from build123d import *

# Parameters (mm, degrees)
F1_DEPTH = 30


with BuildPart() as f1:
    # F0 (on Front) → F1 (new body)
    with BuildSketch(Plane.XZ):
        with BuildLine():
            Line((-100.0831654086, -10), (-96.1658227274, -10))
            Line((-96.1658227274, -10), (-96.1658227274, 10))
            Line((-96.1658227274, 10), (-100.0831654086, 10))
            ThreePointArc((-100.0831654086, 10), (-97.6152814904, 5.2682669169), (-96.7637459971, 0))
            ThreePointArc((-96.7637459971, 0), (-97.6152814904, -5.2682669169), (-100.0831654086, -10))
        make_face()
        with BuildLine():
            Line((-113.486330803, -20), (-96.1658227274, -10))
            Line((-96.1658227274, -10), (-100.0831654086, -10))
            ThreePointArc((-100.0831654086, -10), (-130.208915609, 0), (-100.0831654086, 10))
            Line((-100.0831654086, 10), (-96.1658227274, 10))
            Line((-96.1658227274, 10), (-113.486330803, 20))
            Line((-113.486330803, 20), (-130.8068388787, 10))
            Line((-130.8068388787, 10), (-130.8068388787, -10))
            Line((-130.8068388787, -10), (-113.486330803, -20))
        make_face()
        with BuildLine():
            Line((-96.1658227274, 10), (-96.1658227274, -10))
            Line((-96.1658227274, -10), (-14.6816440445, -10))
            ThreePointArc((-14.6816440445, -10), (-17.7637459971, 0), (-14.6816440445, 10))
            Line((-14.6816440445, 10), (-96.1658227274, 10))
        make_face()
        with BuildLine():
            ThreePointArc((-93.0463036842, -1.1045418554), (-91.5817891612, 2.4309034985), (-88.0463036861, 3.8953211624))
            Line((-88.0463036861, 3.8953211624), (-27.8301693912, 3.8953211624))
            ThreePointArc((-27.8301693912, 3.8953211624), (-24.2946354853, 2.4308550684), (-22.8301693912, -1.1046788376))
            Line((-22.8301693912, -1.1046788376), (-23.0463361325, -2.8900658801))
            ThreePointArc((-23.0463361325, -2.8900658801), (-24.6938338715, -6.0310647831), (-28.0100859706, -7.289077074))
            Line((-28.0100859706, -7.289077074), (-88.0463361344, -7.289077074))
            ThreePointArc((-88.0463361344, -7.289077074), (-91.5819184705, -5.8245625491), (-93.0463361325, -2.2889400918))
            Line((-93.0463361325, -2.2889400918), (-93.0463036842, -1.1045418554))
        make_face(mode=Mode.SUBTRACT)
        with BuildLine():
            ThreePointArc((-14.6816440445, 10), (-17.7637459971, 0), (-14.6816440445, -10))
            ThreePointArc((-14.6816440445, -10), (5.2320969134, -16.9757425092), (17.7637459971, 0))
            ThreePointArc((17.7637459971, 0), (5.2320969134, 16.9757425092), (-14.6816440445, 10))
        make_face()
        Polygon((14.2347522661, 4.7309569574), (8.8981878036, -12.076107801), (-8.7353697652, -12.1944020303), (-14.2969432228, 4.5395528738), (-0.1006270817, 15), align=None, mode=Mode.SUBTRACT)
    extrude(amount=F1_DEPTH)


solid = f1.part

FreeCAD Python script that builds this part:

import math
import FreeCAD as App
import Part
import Sketcher
from FreeCAD import Vector
Q = App.Units.Quantity


def add_polygon(sketch, points):
    """Adds a closed chain of lines whose ends are joined by coincident constraints."""
    first, n = sketch.GeometryCount, len(points)
    for a, b in zip(points, points[1:] + points[:1]):
        sketch.addGeometry(Part.LineSegment(App.Vector(*a, 0), App.Vector(*b, 0)), False)
    for i in range(n):
        sketch.addConstraint(Sketcher.Constraint("Coincident", first + i, 2, first + (i + 1) % n, 1))

doc = App.newDocument("Part")
body = doc.addObject("PartDesign::Body", "Body")

# Sketch on XZ plane
sketch1 = doc.addObject("Sketcher::SketchObject", "Sketch")
body.addObject(sketch1)
sketch1.AttachmentSupport = (doc.XZ_Plane, [""])
sketch1.MapMode = "FlatFace"
sketch1.addGeometry(Part.LineSegment(Vector(-96.2, 10, 0), Vector(-113.5, 20, 0)), False)  # 0
sketch1.addGeometry(Part.LineSegment(Vector(-113.5, 20, 0), Vector(-130.8, 10, 0)), False)  # 1
sketch1.addGeometry(Part.LineSegment(Vector(-130.8, 10, 0), Vector(-130.8, -10, 0)), False)  # 2
sketch1.addGeometry(Part.LineSegment(Vector(-130.8, -10, 0), Vector(-113.5, -20, 0)), False)  # 3
sketch1.addGeometry(Part.LineSegment(Vector(-113.5, -20, 0), Vector(-96.2, -10, 0)), False)  # 4
sketch1.addGeometry(Part.LineSegment(Vector(-96.2, -10, 0), Vector(-14.7, -10, 0)), False)  # 5
sketch1.addGeometry(Part.ArcOfCircle(Part.Circle(Vector(0, 0, 0), Vector(0, 0, 1), 17.8), math.radians(-146), math.radians(0)), False)  # 6
sketch1.addGeometry(Part.ArcOfCircle(Part.Circle(Vector(0, 0, 0), Vector(0, 0, 1), 17.8), math.radians(0), math.radians(146)), False)  # 7
sketch1.addGeometry(Part.LineSegment(Vector(-14.7, 10, 0), Vector(-96.2, 10, 0)), False)  # 8
sketch1.addGeometry(Part.LineSegment(Vector(-93, -2.3, 0), Vector(-93, -1.1, 0)), False)  # 9
sketch1.addGeometry(Part.ArcOfCircle(Part.Circle(Vector(-88, -1.1, 0), Vector(0, 0, 1), 5), math.radians(90), math.radians(180)), False)  # 10
sketch1.addGeometry(Part.LineSegment(Vector(-88, 3.9, 0), Vector(-27.8, 3.9, 0)), False)  # 11
sketch1.addGeometry(Part.ArcOfCircle(Part.Circle(Vector(-27.8, -1.1, 0), Vector(0, 0, 1), 5), math.radians(0), math.radians(90)), False)  # 12
sketch1.addGeometry(Part.LineSegment(Vector(-22.8, -1.1, 0), Vector(-23, -2.9, 0)), False)  # 13
sketch1.addGeometry(Part.ArcOfCircle(Part.Circle(Vector(-28, -2.3, 0), Vector(0, 0, 1), 5), math.radians(-90), math.radians(-7)), False)  # 14
sketch1.addGeometry(Part.LineSegment(Vector(-28, -7.3, 0), Vector(-88, -7.3, 0)), False)  # 15
sketch1.addGeometry(Part.ArcOfCircle(Part.Circle(Vector(-88, -2.3, 0), Vector(0, 0, 1), 5), math.radians(180), math.radians(270)), False)  # 16
sketch1.addGeometry(Part.ArcOfCircle(Part.Circle(Vector(-113.5, 0, 0), Vector(0, 0, 1), 16.7), math.radians(0), math.radians(37)), False)  # 17
sketch1.addGeometry(Part.ArcOfCircle(Part.Circle(Vector(-113.5, 0, 0), Vector(0, 0, 1), 16.7), math.radians(-37), math.radians(0)), False)  # 18
sketch1.addGeometry(Part.ArcOfCircle(Part.Circle(Vector(-113.5, 0, 0), Vector(0, 0, 1), 16.7), math.radians(37), math.radians(323)), False)  # 19
add_polygon(sketch1, [(-0.1, 15), (14.2, 4.7), (8.9, -12.1), (-8.7, -12.2), (-14.3, 4.5)])  # lines 20-24
sketch1.addConstraint([
    Sketcher.Constraint("Coincident", 0, 2, 1, 1),
    Sketcher.Constraint("Coincident", 1, 2, 2, 1),
    Sketcher.Constraint("Coincident", 2, 2, 3, 1),
    Sketcher.Constraint("Coincident", 3, 2, 4, 1),
    Sketcher.Constraint("Coincident", 4, 2, 5, 1),
    Sketcher.Constraint("Coincident", 5, 2, 6, 1),
    Sketcher.Constraint("Tangent", 6, 2, 7, 1),
    Sketcher.Constraint("Coincident", 7, 2, 8, 1),
    Sketcher.Constraint("Coincident", 8, 2, 0, 1),
    Sketcher.Constraint("Tangent", 9, 2, 10, 2),
    Sketcher.Constraint("Tangent", 10, 1, 11, 1),
    Sketcher.Constraint("Tangent", 11, 2, 12, 2),
    Sketcher.Constraint("Coincident", 12, 1, 13, 1),
    Sketcher.Constraint("Tangent", 13, 2, 14, 2),
    Sketcher.Constraint("Tangent", 14, 1, 15, 1),
    Sketcher.Constraint("Tangent", 15, 2, 16, 2),
    Sketcher.Constraint("Tangent", 16, 1, 9, 1),
    Sketcher.Constraint("Tangent", 17, 1, 18, 2),
    Sketcher.Constraint("Tangent", 18, 1, 19, 2),
    Sketcher.Constraint("Tangent", 19, 1, 17, 2),
    Sketcher.Constraint("Vertical", 2),
    Sketcher.Constraint("Horizontal", 5),
    Sketcher.Constraint("Horizontal", 8),
    Sketcher.Constraint("Horizontal", 11),
    Sketcher.Constraint("Horizontal", 15),
    Sketcher.Constraint("Coincident", 6, 3, -1, 1),
    Sketcher.Constraint("Equal", 6, 7),
    Sketcher.Constraint("Equal", 10, 12),
    Sketcher.Constraint("Equal", 12, 14),
    Sketcher.Constraint("Equal", 14, 16),
    Sketcher.Constraint("Symmetric", 0, 2, 3, 2, -1),
    Sketcher.Constraint("Symmetric", 4, 2, 8, 2, -1),
    Sketcher.Constraint("Symmetric", 18, 1, 19, 1, -1),
    Sketcher.Constraint("PointOnObject", 6, 2, -1),
    Sketcher.Constraint("PointOnObject", 17, 1, -1),
    Sketcher.Constraint("Parallel", 0, 3),
    Sketcher.Constraint("Parallel", 1, 4),
    Sketcher.Constraint("Horizontal", 2, 2, 4, 2),
    Sketcher.Constraint("Horizontal", 10, 3, 12, 1),
    Sketcher.Constraint("Horizontal", 5, 2, 18, 1),
    Sketcher.Constraint("Vertical", 19, 3, 0, 2),
    Sketcher.Constraint("Equal", 20, 21),
    Sketcher.Constraint("Equal", 21, 22),
    Sketcher.Constraint("Equal", 22, 23),
    Sketcher.Constraint("Equal", 23, 24),
    Sketcher.Constraint("Radius", 10, 5.0),
    Sketcher.Constraint("DistanceY", 2, 2, 2, 1, 20.0),
    Sketcher.Constraint("Angle", 0, Q("150 deg")),
    Sketcher.Constraint("Distance", 0, 20.0),
    Sketcher.Constraint("DistanceY", -1, 1, 24, 2, 15.0),
    Sketcher.Constraint("Radius", 6, 17.763746),
    Sketcher.Constraint("Radius", 17, 16.722585),
    Sketcher.Constraint("Distance", 9, 1.184398),
    Sketcher.Constraint("DistanceX", 5, 1, 5, 2, 81.484179),
    Sketcher.Constraint("DistanceX", 15, 2, 15, 1, 60.03625),
    Sketcher.Constraint("DistanceX", 7, 2, 23, 2, 0.384701),
    Sketcher.Constraint("DistanceX", 11, 1, 11, 2, 60.216134),
    Sketcher.Constraint("DistanceY", 10, 3, -1, 1, 1.104679),
    Sketcher.Constraint("DistanceX", 12, 3, -1, 1, 27.830169),
    Sketcher.Constraint("DistanceY", 9, 2, -1, 1, 1.104542),
    Sketcher.Constraint("DistanceX", 22, 2, -1, 1, 8.73537),
    Sketcher.Constraint("DistanceX", 21, 2, 6, 2, 8.865558),
    Sketcher.Constraint("DistanceY", 12, 1, 23, 2, 5.644232),
    Sketcher.Constraint("DistanceX", 24, 2, 20, 2, 14.335379),
])
pad1 = doc.addObject("PartDesign::Pad", "Pad")
body.addObject(pad1)
pad1.Profile = sketch1
pad1.Length = 30

doc.recompute()
